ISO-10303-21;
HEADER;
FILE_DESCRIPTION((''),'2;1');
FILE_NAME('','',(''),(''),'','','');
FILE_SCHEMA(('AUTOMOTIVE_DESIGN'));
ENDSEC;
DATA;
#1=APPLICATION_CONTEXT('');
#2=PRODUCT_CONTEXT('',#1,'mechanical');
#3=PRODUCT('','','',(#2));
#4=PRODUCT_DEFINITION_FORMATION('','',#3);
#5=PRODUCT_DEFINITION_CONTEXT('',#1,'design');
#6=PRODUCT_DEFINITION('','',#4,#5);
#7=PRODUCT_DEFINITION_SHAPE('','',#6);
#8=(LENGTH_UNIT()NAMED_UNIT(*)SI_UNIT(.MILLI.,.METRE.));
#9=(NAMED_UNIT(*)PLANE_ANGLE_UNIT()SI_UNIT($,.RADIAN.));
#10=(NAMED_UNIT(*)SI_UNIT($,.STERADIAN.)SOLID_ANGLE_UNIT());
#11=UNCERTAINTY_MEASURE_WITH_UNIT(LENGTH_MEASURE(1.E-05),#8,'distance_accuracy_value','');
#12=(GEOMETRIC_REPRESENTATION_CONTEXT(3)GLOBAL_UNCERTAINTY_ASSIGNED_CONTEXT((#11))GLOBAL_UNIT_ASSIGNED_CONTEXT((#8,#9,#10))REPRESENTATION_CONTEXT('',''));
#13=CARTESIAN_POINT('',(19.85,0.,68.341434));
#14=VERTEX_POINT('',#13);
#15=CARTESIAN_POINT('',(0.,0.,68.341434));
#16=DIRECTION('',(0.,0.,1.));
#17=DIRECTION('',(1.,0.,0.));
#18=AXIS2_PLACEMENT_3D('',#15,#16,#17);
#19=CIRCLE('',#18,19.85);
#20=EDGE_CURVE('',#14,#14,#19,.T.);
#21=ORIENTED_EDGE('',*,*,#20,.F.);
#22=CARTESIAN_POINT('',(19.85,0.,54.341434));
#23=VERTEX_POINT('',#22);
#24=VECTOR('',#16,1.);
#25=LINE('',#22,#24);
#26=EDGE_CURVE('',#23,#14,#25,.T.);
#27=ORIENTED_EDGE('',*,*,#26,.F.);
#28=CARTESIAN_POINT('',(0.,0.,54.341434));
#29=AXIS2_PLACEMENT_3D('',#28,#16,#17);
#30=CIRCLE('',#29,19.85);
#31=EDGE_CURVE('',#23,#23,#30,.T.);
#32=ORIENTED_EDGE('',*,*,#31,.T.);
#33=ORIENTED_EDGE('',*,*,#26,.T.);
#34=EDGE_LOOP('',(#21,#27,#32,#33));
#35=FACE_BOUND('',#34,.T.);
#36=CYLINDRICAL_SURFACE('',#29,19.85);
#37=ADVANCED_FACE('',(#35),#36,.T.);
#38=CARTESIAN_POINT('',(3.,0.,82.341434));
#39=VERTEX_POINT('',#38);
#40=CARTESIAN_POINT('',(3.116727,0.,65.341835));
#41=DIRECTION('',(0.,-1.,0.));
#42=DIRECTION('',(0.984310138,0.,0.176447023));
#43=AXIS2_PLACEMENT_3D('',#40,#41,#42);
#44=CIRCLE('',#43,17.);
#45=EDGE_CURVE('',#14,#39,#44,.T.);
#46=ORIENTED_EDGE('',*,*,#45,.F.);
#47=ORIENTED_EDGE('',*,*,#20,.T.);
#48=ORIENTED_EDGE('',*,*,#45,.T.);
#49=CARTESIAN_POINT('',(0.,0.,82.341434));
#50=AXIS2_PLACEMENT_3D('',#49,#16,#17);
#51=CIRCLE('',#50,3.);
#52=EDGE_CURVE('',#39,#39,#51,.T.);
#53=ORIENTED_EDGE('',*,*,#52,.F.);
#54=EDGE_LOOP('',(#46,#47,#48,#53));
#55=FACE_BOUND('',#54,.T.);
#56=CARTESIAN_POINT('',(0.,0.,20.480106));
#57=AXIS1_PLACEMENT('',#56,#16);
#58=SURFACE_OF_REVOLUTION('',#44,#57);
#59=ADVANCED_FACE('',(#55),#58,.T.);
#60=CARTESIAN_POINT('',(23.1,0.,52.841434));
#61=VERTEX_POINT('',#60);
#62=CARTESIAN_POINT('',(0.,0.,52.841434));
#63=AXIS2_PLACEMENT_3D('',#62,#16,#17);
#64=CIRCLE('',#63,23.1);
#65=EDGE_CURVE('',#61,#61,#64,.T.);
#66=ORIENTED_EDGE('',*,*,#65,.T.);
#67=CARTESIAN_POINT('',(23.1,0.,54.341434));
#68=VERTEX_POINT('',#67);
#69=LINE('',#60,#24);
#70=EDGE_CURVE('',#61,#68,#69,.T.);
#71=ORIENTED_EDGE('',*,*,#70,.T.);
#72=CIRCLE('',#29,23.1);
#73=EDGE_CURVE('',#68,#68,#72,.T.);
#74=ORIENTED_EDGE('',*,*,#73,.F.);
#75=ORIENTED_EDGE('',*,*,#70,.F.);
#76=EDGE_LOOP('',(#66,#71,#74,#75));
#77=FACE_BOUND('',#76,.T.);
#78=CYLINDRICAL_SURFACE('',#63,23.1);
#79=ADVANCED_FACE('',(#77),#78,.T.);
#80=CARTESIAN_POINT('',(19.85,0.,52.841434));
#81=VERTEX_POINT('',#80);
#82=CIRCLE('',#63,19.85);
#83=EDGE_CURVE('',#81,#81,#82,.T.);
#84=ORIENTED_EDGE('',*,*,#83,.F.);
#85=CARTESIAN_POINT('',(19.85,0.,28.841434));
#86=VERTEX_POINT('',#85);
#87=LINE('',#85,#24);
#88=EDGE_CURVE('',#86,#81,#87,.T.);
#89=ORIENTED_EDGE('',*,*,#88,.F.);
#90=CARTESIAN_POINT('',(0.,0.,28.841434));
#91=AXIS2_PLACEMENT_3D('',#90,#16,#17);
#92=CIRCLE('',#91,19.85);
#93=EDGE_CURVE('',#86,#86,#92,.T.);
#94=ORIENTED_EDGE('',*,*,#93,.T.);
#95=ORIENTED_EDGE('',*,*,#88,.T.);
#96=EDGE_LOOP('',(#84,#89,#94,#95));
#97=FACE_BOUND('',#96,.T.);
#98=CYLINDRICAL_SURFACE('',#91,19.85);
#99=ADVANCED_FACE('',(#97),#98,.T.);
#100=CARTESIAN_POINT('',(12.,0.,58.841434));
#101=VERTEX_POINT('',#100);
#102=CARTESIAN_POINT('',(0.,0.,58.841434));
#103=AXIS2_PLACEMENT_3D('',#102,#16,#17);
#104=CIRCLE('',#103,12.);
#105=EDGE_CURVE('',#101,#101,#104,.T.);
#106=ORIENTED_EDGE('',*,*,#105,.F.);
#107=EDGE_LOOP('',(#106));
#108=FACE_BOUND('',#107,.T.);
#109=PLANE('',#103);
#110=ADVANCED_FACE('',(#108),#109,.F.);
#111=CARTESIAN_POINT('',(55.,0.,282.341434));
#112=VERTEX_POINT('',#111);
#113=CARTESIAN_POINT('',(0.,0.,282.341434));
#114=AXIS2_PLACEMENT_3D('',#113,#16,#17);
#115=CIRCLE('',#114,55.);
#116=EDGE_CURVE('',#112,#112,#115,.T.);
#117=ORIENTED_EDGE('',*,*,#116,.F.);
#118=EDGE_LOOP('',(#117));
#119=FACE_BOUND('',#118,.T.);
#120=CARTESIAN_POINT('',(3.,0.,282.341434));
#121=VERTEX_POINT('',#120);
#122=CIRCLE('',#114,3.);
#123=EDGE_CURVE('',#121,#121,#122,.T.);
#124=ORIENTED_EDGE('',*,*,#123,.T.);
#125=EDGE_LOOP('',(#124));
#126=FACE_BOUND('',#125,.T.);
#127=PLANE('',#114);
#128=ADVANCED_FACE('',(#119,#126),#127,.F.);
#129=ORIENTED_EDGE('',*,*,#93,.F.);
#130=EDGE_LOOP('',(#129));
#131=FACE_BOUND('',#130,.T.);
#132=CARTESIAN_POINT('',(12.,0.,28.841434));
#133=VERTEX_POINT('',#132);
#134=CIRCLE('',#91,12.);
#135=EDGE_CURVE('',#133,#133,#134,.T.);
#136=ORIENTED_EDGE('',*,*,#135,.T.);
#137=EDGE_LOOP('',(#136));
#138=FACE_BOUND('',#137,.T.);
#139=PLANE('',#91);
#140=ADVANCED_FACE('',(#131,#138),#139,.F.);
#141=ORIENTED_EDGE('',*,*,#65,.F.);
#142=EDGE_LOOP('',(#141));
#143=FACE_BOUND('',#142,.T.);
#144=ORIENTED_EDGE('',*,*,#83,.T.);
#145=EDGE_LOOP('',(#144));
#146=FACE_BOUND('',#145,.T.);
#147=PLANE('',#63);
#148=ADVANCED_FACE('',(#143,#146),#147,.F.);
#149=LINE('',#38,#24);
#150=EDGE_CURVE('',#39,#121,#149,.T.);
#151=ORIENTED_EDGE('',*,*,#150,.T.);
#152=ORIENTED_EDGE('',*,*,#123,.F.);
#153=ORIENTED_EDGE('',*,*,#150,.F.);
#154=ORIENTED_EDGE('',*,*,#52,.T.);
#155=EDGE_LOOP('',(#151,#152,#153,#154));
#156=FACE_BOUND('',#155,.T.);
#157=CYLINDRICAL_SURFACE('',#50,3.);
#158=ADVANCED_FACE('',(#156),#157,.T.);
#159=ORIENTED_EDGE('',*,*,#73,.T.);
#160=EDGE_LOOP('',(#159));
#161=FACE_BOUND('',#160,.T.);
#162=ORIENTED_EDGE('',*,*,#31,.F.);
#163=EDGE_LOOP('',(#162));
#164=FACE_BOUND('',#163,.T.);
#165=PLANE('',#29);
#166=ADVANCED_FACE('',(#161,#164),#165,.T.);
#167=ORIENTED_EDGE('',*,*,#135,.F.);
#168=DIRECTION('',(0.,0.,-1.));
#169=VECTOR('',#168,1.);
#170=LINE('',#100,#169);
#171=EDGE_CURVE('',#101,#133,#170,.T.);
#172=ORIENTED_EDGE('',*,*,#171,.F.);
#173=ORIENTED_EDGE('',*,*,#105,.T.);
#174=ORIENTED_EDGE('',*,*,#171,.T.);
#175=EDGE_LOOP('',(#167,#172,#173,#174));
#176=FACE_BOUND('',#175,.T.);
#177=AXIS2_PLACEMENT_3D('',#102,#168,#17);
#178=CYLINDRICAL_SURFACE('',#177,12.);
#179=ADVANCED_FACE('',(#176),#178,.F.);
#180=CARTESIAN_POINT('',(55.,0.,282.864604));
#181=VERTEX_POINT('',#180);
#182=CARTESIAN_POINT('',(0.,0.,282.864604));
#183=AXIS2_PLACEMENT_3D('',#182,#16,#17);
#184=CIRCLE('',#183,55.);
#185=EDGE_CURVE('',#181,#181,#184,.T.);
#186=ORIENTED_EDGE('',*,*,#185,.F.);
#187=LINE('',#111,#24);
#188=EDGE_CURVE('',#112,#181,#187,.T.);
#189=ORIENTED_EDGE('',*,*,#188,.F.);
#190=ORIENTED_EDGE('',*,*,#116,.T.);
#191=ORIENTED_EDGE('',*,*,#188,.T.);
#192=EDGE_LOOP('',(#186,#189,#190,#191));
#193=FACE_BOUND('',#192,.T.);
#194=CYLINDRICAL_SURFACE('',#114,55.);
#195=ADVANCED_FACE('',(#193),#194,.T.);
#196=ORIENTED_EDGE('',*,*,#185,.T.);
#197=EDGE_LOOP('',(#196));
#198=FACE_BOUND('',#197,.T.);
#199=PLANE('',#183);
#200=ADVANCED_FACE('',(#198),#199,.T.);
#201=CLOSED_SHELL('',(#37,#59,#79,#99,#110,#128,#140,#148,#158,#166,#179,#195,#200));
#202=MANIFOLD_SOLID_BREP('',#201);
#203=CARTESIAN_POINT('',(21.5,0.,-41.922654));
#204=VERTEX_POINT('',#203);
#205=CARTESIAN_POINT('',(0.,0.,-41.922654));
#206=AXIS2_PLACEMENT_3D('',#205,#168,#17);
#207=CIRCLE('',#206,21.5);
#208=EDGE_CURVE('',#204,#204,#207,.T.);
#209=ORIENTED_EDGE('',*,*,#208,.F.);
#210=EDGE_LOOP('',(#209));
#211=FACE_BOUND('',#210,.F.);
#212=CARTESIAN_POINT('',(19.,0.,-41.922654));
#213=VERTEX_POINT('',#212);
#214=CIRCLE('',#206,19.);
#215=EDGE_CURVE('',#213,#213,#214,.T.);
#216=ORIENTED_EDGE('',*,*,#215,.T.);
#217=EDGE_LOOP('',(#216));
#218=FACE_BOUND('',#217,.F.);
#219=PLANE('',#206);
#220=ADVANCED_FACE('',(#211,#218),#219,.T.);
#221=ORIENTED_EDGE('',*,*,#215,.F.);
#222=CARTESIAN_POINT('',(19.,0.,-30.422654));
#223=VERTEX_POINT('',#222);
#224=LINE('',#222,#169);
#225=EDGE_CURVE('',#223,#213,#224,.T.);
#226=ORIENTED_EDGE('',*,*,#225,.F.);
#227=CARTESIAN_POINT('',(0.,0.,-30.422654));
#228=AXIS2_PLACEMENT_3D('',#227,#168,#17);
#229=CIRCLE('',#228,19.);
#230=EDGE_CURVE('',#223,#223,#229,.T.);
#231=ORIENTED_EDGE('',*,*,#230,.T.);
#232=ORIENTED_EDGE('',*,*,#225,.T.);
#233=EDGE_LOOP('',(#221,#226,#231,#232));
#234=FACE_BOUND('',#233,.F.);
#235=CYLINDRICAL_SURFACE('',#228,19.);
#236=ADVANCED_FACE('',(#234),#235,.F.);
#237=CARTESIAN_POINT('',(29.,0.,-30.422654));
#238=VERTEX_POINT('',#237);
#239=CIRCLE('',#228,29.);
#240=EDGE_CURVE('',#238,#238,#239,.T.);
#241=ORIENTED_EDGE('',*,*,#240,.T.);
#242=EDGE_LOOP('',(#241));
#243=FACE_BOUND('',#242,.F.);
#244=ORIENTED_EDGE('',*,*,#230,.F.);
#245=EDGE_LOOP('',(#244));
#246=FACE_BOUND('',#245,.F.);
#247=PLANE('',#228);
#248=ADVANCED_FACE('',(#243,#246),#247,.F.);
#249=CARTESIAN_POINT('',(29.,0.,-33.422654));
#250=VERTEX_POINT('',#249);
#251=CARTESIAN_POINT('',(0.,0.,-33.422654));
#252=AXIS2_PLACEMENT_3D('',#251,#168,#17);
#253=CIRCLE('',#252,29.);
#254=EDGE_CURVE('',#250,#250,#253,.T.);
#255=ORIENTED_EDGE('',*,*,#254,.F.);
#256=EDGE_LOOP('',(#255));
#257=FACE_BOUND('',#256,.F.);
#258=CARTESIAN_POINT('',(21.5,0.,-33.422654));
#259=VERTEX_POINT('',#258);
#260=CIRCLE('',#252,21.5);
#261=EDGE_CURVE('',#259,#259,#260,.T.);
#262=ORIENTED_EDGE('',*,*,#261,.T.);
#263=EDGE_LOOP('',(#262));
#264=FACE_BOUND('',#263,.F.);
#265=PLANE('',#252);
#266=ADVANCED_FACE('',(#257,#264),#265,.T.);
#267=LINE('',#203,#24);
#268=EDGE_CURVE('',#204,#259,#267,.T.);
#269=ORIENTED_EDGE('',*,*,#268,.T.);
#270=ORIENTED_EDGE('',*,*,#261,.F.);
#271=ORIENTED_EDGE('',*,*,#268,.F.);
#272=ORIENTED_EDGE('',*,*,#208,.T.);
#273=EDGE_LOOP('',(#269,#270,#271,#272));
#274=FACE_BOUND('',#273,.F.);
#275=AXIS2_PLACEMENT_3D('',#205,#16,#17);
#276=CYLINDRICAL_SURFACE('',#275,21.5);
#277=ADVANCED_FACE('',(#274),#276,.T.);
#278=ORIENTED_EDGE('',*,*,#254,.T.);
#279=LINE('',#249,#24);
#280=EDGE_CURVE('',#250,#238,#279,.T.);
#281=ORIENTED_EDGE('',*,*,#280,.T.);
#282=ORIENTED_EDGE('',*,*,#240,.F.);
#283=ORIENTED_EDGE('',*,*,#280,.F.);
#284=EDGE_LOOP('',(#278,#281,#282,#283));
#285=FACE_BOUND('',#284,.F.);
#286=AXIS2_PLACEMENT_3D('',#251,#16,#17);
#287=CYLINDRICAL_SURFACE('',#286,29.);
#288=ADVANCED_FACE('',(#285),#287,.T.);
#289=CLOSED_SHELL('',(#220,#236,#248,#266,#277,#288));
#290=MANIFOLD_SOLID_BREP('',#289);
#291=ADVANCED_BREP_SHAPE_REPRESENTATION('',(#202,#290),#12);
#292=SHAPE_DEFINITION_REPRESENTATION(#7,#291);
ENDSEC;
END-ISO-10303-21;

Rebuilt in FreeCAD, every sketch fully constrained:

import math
import FreeCAD as App
import Part
import Sketcher

V = App.Vector

doc = App.newDocument("Part")
body = doc.addObject("PartDesign::Body", "Body")

# Sketch on XZ plane
sketch1 = body.newObject("Sketcher::SketchObject", "Sketch")
sketch1.AttachmentSupport = (doc.getObject("XZ_Plane"), [""])
sketch1.MapMode = "FlatFace"
sketch1.addGeometry([
    Part.LineSegment(V(0, 282.864604, 0), V(0, 58.841434, 0)),  # 0
    Part.LineSegment(V(0, 58.841434, 0), V(12, 58.841434, 0)),  # 1
    Part.LineSegment(V(12, 58.841434, 0), V(12, 28.841434, 0)),  # 2
    Part.LineSegment(V(12, 28.841434, 0), V(19.85, 28.841434, 0)),  # 3
    Part.LineSegment(V(19.85, 28.841434, 0), V(19.85, 52.841434, 0)),  # 4
    Part.LineSegment(V(19.85, 52.841434, 0), V(23.1, 52.841434, 0)),  # 5
    Part.LineSegment(V(23.1, 52.841434, 0), V(23.1, 54.341434, 0)),  # 6
    Part.LineSegment(V(23.1, 54.341434, 0), V(19.85, 54.341434, 0)),  # 7
    Part.LineSegment(V(19.85, 54.341434, 0), V(19.85, 68.341434, 0)),  # 8
    Part.ArcOfCircle(Part.Circle(V(3.116727, 65.341835, 0), V(0, 0, 1), 17), math.radians(10.162877), math.radians(90.393414)),  # 9
    Part.LineSegment(V(3, 82.341434, 0), V(3, 282.341434, 0)),  # 10
    Part.LineSegment(V(3, 282.341434, 0), V(55, 282.341434, 0)),  # 11
    Part.LineSegment(V(55, 282.341434, 0), V(55, 282.864604, 0)),  # 12
    Part.LineSegment(V(55, 282.864604, 0), V(0, 282.864604, 0)),  # 13
], False)
sketch1.addConstraint([
    Sketcher.Constraint("Coincident", 0, 2, 1, 1),
    Sketcher.Constraint("Coincident", 1, 2, 2, 1),
    Sketcher.Constraint("Coincident", 2, 2, 3, 1),
    Sketcher.Constraint("Coincident", 3, 2, 4, 1),
    Sketcher.Constraint("Coincident", 4, 2, 5, 1),
    Sketcher.Constraint("Coincident", 5, 2, 6, 1),
    Sketcher.Constraint("Coincident", 6, 2, 7, 1),
    Sketcher.Constraint("Coincident", 7, 2, 8, 1),
    Sketcher.Constraint("Coincident", 8, 2, 9, 1),
    Sketcher.Constraint("Coincident", 9, 2, 10, 1),
    Sketcher.Constraint("Coincident", 10, 2, 11, 1),
    Sketcher.Constraint("Coincident", 11, 2, 12, 1),
    Sketcher.Constraint("Coincident", 12, 2, 13, 1),
    Sketcher.Constraint("Coincident", 13, 2, 0, 1),
    Sketcher.Constraint("Vertical", 0),
    Sketcher.Constraint("Horizontal", 1),
    Sketcher.Constraint("Vertical", 2),
    Sketcher.Constraint("Horizontal", 3),
    Sketcher.Constraint("Vertical", 4),
    Sketcher.Constraint("Horizontal", 5),
    Sketcher.Constraint("Vertical", 6),
    Sketcher.Constraint("Horizontal", 7),
    Sketcher.Constraint("Vertical", 8),
    Sketcher.Constraint("Vertical", 10),
    Sketcher.Constraint("Horizontal", 11),
    Sketcher.Constraint("Vertical", 12),
    Sketcher.Constraint("Horizontal", 13),
    Sketcher.Constraint("PointOnObject", 0, 2, -2),
    Sketcher.Constraint("Vertical", 4, 2, 7, 2),
    Sketcher.Constraint("Radius", 9, 17.0),
    Sketcher.Constraint("DistanceX", 1, 1, 1, 2, 12.0),
    Sketcher.Constraint("DistanceX", 11, 1, 11, 2, 52.0),
    Sketcher.Constraint("DistanceX", 13, 2, 13, 1, 55.0),
    Sketcher.Constraint("DistanceY", 2, 2, 2, 1, 30.0),
    Sketcher.Constraint("DistanceY", 4, 1, 4, 2, 24.0),
    Sketcher.Constraint("DistanceY", 8, 1, 8, 2, 14.0),
    Sketcher.Constraint("DistanceY", 10, 1, 10, 2, 200.0),
    Sketcher.Constraint("DistanceY", 6, 1, 6, 2, 1.5),
    Sketcher.Constraint("DistanceY", 8, 2, 9, 2, 14.0),
    Sketcher.Constraint("DistanceX", 3, 1, 3, 2, 7.85),
    Sketcher.Constraint("DistanceX", 5, 1, 5, 2, 3.25),
    Sketcher.Constraint("DistanceY", 0, 2, 0, 1, 224.02317),
    Sketcher.Constraint("DistanceY", -1, 1, 9, 3, 65.341835),
])
revolution = body.newObject("PartDesign::Revolution", "Revolution")
revolution.Profile = sketch1
revolution.ReferenceAxis = (sketch1, ["V_Axis"])
revolution.Angle = 360
body2 = doc.addObject("PartDesign::Body", "Body001")

# Sketch on XZ plane
sketch2 = body2.newObject("Sketcher::SketchObject", "Sketch001")
sketch2.AttachmentSupport = (doc.getObject("XZ_Plane001"), [""])
sketch2.MapMode = "FlatFace"
sketch2.addGeometry([
    Part.LineSegment(V(21.5, -33.422654, 0), V(29, -33.422654, 0)),  # 0
    Part.LineSegment(V(29, -33.422654, 0), V(29, -30.422654, 0)),  # 1
    Part.LineSegment(V(29, -30.422654, 0), V(19, -30.422654, 0)),  # 2
    Part.LineSegment(V(19, -30.422654, 0), V(19, -41.922654, 0)),  # 3
    Part.LineSegment(V(19, -41.922654, 0), V(21.5, -41.922654, 0)),  # 4
    Part.LineSegment(V(21.5, -41.922654, 0), V(21.5, -33.422654, 0)),  # 5
], False)
sketch2.addConstraint([
    Sketcher.Constraint("Coincident", 0, 2, 1, 1),
    Sketcher.Constraint("Coincident", 1, 2, 2, 1),
    Sketcher.Constraint("Coincident", 2, 2, 3, 1),
    Sketcher.Constraint("Coincident", 3, 2, 4, 1),
    Sketcher.Constraint("Coincident", 4, 2, 5, 1),
    Sketcher.Constraint("Coincident", 5, 2, 0, 1),
    Sketcher.Constraint("Horizontal", 0),
    Sketcher.Constraint("Vertical", 1),
    Sketcher.Constraint("Horizontal", 2),
    Sketcher.Constraint("Vertical", 3),
    Sketcher.Constraint("Horizontal", 4),
    Sketcher.Constraint("Vertical", 5),
    Sketcher.Constraint("DistanceX", 2, 2, 2, 1, 10.0),
    Sketcher.Constraint("DistanceY", 1, 1, 1, 2, 3.0),
    Sketcher.Constraint("DistanceX", 0, 1, 0, 2, 7.5),
    Sketcher.Constraint("DistanceY", 3, 2, 3, 1, 11.5),
    Sketcher.Constraint("DistanceX", -1, 1, 0, 2, 29.0),
    Sketcher.Constraint("DistanceY", 0, 2, -1, 1, 33.422654),
])
revolution2 = body2.newObject("PartDesign::Revolution", "Revolution001")
revolution2.Profile = sketch2
revolution2.ReferenceAxis = (sketch2, ["V_Axis"])
revolution2.Angle = 360

doc.recompute()
